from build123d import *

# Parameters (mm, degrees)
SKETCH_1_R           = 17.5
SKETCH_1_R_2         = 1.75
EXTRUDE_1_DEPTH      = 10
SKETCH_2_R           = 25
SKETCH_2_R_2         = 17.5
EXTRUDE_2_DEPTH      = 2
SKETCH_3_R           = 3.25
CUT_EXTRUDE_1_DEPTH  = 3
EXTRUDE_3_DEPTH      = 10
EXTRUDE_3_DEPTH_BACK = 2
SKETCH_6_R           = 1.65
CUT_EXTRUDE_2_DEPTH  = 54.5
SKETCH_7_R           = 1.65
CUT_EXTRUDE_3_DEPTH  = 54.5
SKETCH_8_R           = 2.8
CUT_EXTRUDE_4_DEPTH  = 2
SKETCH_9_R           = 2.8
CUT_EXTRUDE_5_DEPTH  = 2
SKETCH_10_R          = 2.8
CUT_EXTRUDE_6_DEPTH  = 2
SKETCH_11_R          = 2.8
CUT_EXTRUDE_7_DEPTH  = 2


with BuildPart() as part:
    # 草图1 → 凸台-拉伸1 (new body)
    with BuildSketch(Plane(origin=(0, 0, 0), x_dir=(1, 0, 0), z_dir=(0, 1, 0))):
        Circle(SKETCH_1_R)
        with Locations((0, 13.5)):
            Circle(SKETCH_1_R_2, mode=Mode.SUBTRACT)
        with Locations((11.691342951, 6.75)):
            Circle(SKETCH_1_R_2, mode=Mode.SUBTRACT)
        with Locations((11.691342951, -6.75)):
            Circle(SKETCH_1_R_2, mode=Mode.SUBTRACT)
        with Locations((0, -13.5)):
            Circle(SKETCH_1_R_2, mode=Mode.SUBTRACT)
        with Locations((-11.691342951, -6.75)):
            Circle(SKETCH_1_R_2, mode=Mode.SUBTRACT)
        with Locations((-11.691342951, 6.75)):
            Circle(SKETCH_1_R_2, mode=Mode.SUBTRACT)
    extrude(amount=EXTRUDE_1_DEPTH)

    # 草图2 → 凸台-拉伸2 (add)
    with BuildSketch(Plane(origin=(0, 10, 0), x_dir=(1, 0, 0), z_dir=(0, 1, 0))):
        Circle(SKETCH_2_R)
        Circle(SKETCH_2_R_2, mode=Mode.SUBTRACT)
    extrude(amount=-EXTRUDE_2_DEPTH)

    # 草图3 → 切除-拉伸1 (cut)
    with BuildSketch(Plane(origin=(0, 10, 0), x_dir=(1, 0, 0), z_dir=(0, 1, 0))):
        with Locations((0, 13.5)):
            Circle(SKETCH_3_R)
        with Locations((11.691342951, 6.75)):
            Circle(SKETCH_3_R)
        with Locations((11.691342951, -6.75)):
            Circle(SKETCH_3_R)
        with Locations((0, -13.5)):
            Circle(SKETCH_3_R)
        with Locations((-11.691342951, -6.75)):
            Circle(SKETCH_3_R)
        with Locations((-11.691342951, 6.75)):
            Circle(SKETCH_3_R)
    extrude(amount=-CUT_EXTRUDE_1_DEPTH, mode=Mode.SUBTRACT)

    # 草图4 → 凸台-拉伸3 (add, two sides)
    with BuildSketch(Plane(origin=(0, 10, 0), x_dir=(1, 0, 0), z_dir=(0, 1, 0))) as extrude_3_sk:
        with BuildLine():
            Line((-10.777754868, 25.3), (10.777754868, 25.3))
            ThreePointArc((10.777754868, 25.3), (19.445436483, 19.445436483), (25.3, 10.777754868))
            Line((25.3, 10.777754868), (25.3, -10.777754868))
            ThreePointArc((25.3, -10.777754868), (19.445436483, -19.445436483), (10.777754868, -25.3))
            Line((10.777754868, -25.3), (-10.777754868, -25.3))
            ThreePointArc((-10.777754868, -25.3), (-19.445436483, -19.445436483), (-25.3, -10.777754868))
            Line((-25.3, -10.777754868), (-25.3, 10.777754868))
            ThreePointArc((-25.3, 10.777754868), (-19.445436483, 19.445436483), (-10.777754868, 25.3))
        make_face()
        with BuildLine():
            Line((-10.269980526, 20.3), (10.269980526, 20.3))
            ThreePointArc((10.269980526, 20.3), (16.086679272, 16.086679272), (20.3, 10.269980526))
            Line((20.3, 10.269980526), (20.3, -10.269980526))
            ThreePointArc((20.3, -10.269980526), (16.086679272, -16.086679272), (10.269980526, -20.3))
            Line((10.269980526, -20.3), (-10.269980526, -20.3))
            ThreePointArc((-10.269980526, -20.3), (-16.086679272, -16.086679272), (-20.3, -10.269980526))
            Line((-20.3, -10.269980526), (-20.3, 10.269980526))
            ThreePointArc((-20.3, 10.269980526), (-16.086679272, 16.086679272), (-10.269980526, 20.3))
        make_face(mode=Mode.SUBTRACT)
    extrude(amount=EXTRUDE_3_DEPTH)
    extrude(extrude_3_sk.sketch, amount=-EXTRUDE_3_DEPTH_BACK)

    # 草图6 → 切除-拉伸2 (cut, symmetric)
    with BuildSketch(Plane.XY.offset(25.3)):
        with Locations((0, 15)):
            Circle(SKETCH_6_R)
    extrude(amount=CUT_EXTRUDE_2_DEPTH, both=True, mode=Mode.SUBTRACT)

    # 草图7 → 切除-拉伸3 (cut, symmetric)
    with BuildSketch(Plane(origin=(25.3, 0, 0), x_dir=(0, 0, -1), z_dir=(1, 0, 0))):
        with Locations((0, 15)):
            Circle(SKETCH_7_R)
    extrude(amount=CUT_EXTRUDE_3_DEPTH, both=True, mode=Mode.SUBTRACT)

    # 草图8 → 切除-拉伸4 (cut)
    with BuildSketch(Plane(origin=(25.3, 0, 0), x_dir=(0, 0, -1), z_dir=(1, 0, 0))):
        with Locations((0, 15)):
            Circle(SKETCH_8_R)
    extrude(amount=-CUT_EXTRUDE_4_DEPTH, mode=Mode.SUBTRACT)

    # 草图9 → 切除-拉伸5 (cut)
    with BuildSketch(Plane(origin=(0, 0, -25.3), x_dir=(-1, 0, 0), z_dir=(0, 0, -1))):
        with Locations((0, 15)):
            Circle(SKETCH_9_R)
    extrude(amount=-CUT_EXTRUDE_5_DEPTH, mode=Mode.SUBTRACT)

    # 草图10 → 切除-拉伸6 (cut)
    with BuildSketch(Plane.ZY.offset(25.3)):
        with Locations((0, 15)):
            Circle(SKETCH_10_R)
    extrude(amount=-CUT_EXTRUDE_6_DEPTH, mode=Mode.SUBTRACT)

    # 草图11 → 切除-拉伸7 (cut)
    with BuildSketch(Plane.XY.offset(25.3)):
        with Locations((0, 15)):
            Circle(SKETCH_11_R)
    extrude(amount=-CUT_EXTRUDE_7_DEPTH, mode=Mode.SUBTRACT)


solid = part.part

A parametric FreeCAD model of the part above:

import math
import FreeCAD as App
import Part
import Sketcher

doc = App.newDocument("Part")
params = doc.addObject("Spreadsheet::Sheet", "Params")
for row, (alias, value) in enumerate([
    ("sketch1_diameter", "35 mm"),
    ("sketch1_diameter2", "3.5 mm"),
    ("pad1_length", "10 mm"),
    ("sketch2_diameter", "50 mm"),
    ("sketch2_diameter2", "35 mm"),
    ("pad2_length", "2 mm"),
    ("sketch3_diameter", "6.5 mm"),
    ("pocket1_length", "3 mm"),
    ("sketch4_radius", "27.5 mm"),
    ("sketch4_radius2", "22.75 mm"),
    ("pad3_length", "10 mm"),
    ("pad3_length2", "2 mm"),
    ("sketch5_diameter", "3.3 mm"),
    ("pocket2_length", "109 mm"),
    ("sketch6_diameter", "3.3 mm"),
    ("pocket3_length", "109 mm"),
    ("sketch7_diameter", "5.6 mm"),
    ("pocket4_length", "2 mm"),
    ("sketch8_diameter", "5.6 mm"),
    ("pocket5_length", "2 mm"),
    ("sketch9_diameter", "5.6 mm"),
    ("pocket6_length", "2 mm"),
    ("sketch10_diameter", "5.6 mm"),
    ("pocket7_length", "2 mm"),
], start=1):
    params.set(f"A{row}", alias)
    params.set(f"B{row}", "=" + value)
    params.setAlias(f"B{row}", alias)

body = doc.addObject("PartDesign::Body", "Body")

sketch1 = body.newObject("Sketcher::SketchObject", "Sketch")
sketch1.AttachmentSupport = (doc.getObject("XZ_Plane"), [""])
sketch1.MapMode = "FlatFace"
sketch1.addGeometry([
    Part.Circle(App.Vector(0, 0, 0), App.Vector(0, 0, 1), 17.5),
    Part.Circle(App.Vector(-11.691343, 6.75, 0), App.Vector(0, 0, 1), 1.75),
    Part.Circle(App.Vector(0, 13.5, 0), App.Vector(0, 0, 1), 1.75),
    Part.Circle(App.Vector(11.691343, 6.75, 0), App.Vector(0, 0, 1), 1.75),
    Part.Circle(App.Vector(-11.691343, -6.75, 0), App.Vector(0, 0, 1), 1.75),
    Part.Circle(App.Vector(11.691343, -6.75, 0), App.Vector(0, 0, 1), 1.75),
    Part.Circle(App.Vector(0, -13.5, 0), App.Vector(0, 0, 1), 1.75),
], False)
sketch1.addConstraint([
    Sketcher.Constraint("Coincident", 0, 3, -1, 1),
    Sketcher.Constraint("Equal", 1, 2),
    Sketcher.Constraint("Equal", 2, 3),
    Sketcher.Constraint("Equal", 3, 4),
    Sketcher.Constraint("Equal", 4, 5),
    Sketcher.Constraint("Equal", 5, 6),
    Sketcher.Constraint("Symmetric", 3, 3, 4, 3, -1, 1),
    Sketcher.Constraint("Symmetric", 1, 3, 5, 3, -1, 1),
    Sketcher.Constraint("Symmetric", 2, 3, 6, 3, -1, 1),
    Sketcher.Constraint("Symmetric", 1, 3, 3, 3, -2),
    Sketcher.Constraint("PointOnObject", 2, 3, -2),
    Sketcher.Constraint("Diameter", 0, 35.0),
    Sketcher.Constraint("Diameter", 1, 3.5),
    Sketcher.Constraint("DistanceY", -1, 1, 2, 3, 13.5),
    Sketcher.Constraint("DistanceY", 4, 3, 1, 3, 13.5),
    Sketcher.Constraint("DistanceX", 1, 3, -1, 1, 11.691343),
])
sketch1.setExpression("Constraints[11]", "Params.sketch1_diameter")
sketch1.setExpression("Constraints[12]", "Params.sketch1_diameter2")
pad1 = body.newObject("PartDesign::Pad", "Pad")
pad1.Profile = sketch1
pad1.setExpression("Length", "Params.pad1_length")
pad1.Reversed = True

sketch2 = body.newObject("Sketcher::SketchObject", "Sketch001")
sketch2.AttachmentSupport = (doc.getObject("XZ_Plane"), [""])
sketch2.MapMode = "FlatFace"
sketch2.AttachmentOffset = App.Placement(App.Vector(0, 0, -10), App.Rotation())
sketch2.addGeometry([
    Part.Circle(App.Vector(0, 0, 0), App.Vector(0, 0, 1), 25),
    Part.Circle(App.Vector(0, 0, 0), App.Vector(0, 0, 1), 17.5),
], False)
sketch2.addConstraint([
    Sketcher.Constraint("Coincident", 0, 3, -1, 1),
    Sketcher.Constraint("Coincident", 1, 3, -1, 1),
    Sketcher.Constraint("Diameter", 0, 50.0),
    Sketcher.Constraint("Diameter", 1, 35.0),
])
sketch2.setExpression("Constraints[2]", "Params.sketch2_diameter")
sketch2.setExpression("Constraints[3]", "Params.sketch2_diameter2")
pad2 = body.newObject("PartDesign::Pad", "Pad001")
pad2.Profile = sketch2
pad2.setExpression("Length", "Params.pad2_length")

sketch3 = body.newObject("Sketcher::SketchObject", "Sketch002")
sketch3.AttachmentSupport = (doc.getObject("XZ_Plane"), [""])
sketch3.MapMode = "FlatFace"
sketch3.AttachmentOffset = App.Placement(App.Vector(0, 0, -10), App.Rotation())
sketch3.addGeometry([
    Part.Circle(App.Vector(0, -13.5, 0), App.Vector(0, 0, 1), 3.25),
    Part.Circle(App.Vector(11.691343, -6.75, 0), App.Vector(0, 0, 1), 3.25),
    Part.Circle(App.Vector(11.691343, 6.75, 0), App.Vector(0, 0, 1), 3.25),
    Part.Circle(App.Vector(0, 13.5, 0), App.Vector(0, 0, 1), 3.25),
    Part.Circle(App.Vector(-11.691343, 6.75, 0), App.Vector(0, 0, 1), 3.25),
    Part.Circle(App.Vector(-11.691343, -6.75, 0), App.Vector(0, 0, 1), 3.25),
], False)
sketch3.addConstraint([
    Sketcher.Constraint("Equal", 0, 1),
    Sketcher.Constraint("Equal", 1, 2),
    Sketcher.Constraint("Equal", 2, 3),
    Sketcher.Constraint("Equal", 3, 4),
    Sketcher.Constraint("Equal", 4, 5),
    Sketcher.Constraint("Symmetric", 0, 3, 3, 3, -1, 1),
    Sketcher.Constraint("Symmetric", 1, 3, 4, 3, -1, 1),
    Sketcher.Constraint("Symmetric", 2, 3, 5, 3, -1, 1),
    Sketcher.Constraint("Symmetric", 2, 3, 4, 3, -2),
    Sketcher.Constraint("PointOnObject", 0, 3, -2),
    Sketcher.Constraint("Diameter", 0, 6.5),
    Sketcher.Constraint("DistanceY", 0, 3, 3, 3, 27.0),
    Sketcher.Constraint("DistanceY", 1, 3, 2, 3, 13.5),
    Sketcher.Constraint("DistanceX", -1, 1, 1, 3, 11.691343),
])
sketch3.setExpression("Constraints[10]", "Params.sketch3_diameter")
pocket1 = body.newObject("PartDesign::Pocket", "Pocket")
pocket1.Profile = sketch3
pocket1.setExpression("Length", "Params.pocket1_length")
pocket1.Reversed = True

sketch4 = body.newObject("Sketcher::SketchObject", "Sketch003")
sketch4.AttachmentSupport = (doc.getObject("XZ_Plane"), [""])
sketch4.MapMode = "FlatFace"
sketch4.AttachmentOffset = App.Placement(App.Vector(0, 0, -10), App.Rotation())
sketch4.addGeometry([
    Part.LineSegment(App.Vector(10.777755, -25.3, 0), App.Vector(-10.777755, -25.3, 0)),
    Part.ArcOfCircle(Part.Circle(App.Vector(0, 0, 0), App.Vector(0, 0, 1), 27.5), math.radians(-156.926082), math.radians(-113.073918)),
    Part.LineSegment(App.Vector(-25.3, -10.777755, 0), App.Vector(-25.3, 10.777755, 0)),
    Part.ArcOfCircle(Part.Circle(App.Vector(0, 0, 0), App.Vector(0, 0, 1), 27.5), math.radians(113.073918), math.radians(156.926082)),
    Part.LineSegment(App.Vector(-10.777755, 25.3, 0), App.Vector(10.777755, 25.3, 0)),
    Part.ArcOfCircle(Part.Circle(App.Vector(0, 0, 0), App.Vector(0, 0, 1), 27.5), math.radians(23.073918), math.radians(66.926082)),
    Part.LineSegment(App.Vector(25.3, 10.777755, 0), App.Vector(25.3, -10.777755, 0)),
    Part.ArcOfCircle(Part.Circle(App.Vector(0, 0, 0), App.Vector(0, 0, 1), 27.5), math.radians(-66.926082), math.radians(-23.073918)),
    Part.LineSegment(App.Vector(-10.269981, -20.3, 0), App.Vector(10.269981, -20.3, 0)),
    Part.ArcOfCircle(Part.Circle(App.Vector(0, 0, 0), App.Vector(0, 0, 1), 22.75), math.radians(-63.164678), math.radians(-26.835322)),
    Part.LineSegment(App.Vector(20.3, -10.269981, 0), App.Vector(20.3, 10.269981, 0)),
    Part.ArcOfCircle(Part.Circle(App.Vector(0, 0, 0), App.Vector(0, 0, 1), 22.75), math.radians(26.835322), math.radians(63.164678)),
    Part.LineSegment(App.Vector(10.269981, 20.3, 0), App.Vector(-10.269981, 20.3, 0)),
    Part.ArcOfCircle(Part.Circle(App.Vector(0, 0, 0), App.Vector(0, 0, 1), 22.75), math.radians(116.835322), math.radians(153.164678)),
    Part.LineSegment(App.Vector(-20.3, 10.269981, 0), App.Vector(-20.3, -10.269981, 0)),
    Part.ArcOfCircle(Part.Circle(App.Vector(0, 0, 0), App.Vector(0, 0, 1), 22.75), math.radians(-153.164678), math.radians(-116.835322)),
], False)
sketch4.addConstraint([
    Sketcher.Constraint("Coincident", 0, 2, 1, 2),
    Sketcher.Constraint("Coincident", 1, 1, 2, 1),
    Sketcher.Constraint("Coincident", 2, 2, 3, 2),
    Sketcher.Constraint("Coincident", 3, 1, 4, 1),
    Sketcher.Constraint("Coincident", 4, 2, 5, 2),
    Sketcher.Constraint("Coincident", 5, 1, 6, 1),
    Sketcher.Constraint("Coincident", 6, 2, 7, 2),
    Sketcher.Constraint("Coincident", 7, 1, 0, 1),
    Sketcher.Constraint("Coincident", 8, 2, 9, 1),
    Sketcher.Constraint("Coincident", 9, 2, 10, 1),
    Sketcher.Constraint("Coincident", 10, 2, 11, 1),
    Sketcher.Constraint("Coincident", 11, 2, 12, 1),
    Sketcher.Constraint("Coincident", 12, 2, 13, 1),
    Sketcher.Constraint("Coincident", 13, 2, 14, 1),
    Sketcher.Constraint("Coincident", 14, 2, 15, 1),
    Sketcher.Constraint("Coincident", 15, 2, 8, 1),
    Sketcher.Constraint("Horizontal", 0),
    Sketcher.Constraint("Vertical", 2),
    Sketcher.Constraint("Horizontal", 4),
    Sketcher.Constraint("Vertical", 6),
    Sketcher.Constraint("Horizontal", 8),
    Sketcher.Constraint("Vertical", 10),
    Sketcher.Constraint("Horizontal", 12),
    Sketcher.Constraint("Vertical", 14),
    Sketcher.Constraint("Coincident", 1, 3, -1, 1),
    Sketcher.Constraint("Coincident", 3, 3, -1, 1),
    Sketcher.Constraint("Coincident", 5, 3, -1, 1),
    Sketcher.Constraint("Coincident", 7, 3, -1, 1),
    Sketcher.Constraint("Coincident", 9, 3, -1, 1),
    Sketcher.Constraint("Coincident", 11, 3, -1, 1),
    Sketcher.Constraint("Coincident", 13, 3, -1, 1),
    Sketcher.Constraint("Coincident", 15, 3, -1, 1),
    Sketcher.Constraint("Equal", 1, 3),
    Sketcher.Constraint("Equal", 3, 5),
    Sketcher.Constraint("Equal", 5, 7),
    Sketcher.Constraint("Equal", 9, 11),
    Sketcher.Constraint("Equal", 11, 13),
    Sketcher.Constraint("Equal", 13, 15),
    Sketcher.Constraint("Horizontal", 2, 2, 5, 1),
    Sketcher.Constraint("Horizontal", 10, 2, 13, 2),
    Sketcher.Constraint("Vertical", 0, 2, 3, 1),
    Sketcher.Constraint("Vertical", 8, 2, 11, 2),
    Sketcher.Constraint("Equal", 4, 2),
    Sketcher.Constraint("Equal", 12, 10),
    Sketcher.Constraint("Radius", 1, 27.5),
    Sketcher.Constraint("Radius", 9, 22.75),
    Sketcher.Constraint("DistanceY", 7, 1, 8, 2, 5.0),
    Sketcher.Constraint("DistanceY", 0, 2, -1, 1, 25.3),
])
sketch4.setExpression("Constraints[44]", "Params.sketch4_radius")
sketch4.setExpression("Constraints[45]", "Params.sketch4_radius2")
pad3 = body.newObject("PartDesign::Pad", "Pad002")
pad3.Profile = sketch4
pad3.Type = "TwoLengths"
pad3.setExpression("Length", "Params.pad3_length")
pad3.setExpression("Length2", "Params.pad3_length2")
pad3.Reversed = True

sketch5 = body.newObject("Sketcher::SketchObject", "Sketch004")
sketch5.AttachmentSupport = (doc.getObject("XY_Plane"), [""])
sketch5.MapMode = "FlatFace"
sketch5.AttachmentOffset = App.Placement(App.Vector(0, 0, 25.3), App.Rotation())
sketch5.addGeometry(Part.Circle(App.Vector(0, 15, 0), App.Vector(0, 0, 1), 1.65), False)
sketch5.addConstraint([
    Sketcher.Constraint("PointOnObject", 0, 3, -2),
    Sketcher.Constraint("Diameter", 0, 3.3),
    Sketcher.Constraint("DistanceY", -1, 1, 0, 3, 15.0),
])
sketch5.setExpression("Constraints[1]", "Params.sketch5_diameter")
pocket2 = body.newObject("PartDesign::Pocket", "Pocket001")
pocket2.Profile = sketch5
pocket2.setExpression("Length", "Params.pocket2_length")
pocket2.Midplane = True

sketch6 = body.newObject("Sketcher::SketchObject", "Sketch005")
sketch6.AttachmentSupport = (doc.getObject("YZ_Plane"), [""])
sketch6.MapMode = "FlatFace"
sketch6.AttachmentOffset = App.Placement(App.Vector(0, 0, 25.3), App.Rotation())
sketch6.addGeometry(Part.Circle(App.Vector(15, 0, 0), App.Vector(0, 0, 1), 1.65), False)
sketch6.addConstraint([
    Sketcher.Constraint("PointOnObject", 0, 3, -1),
    Sketcher.Constraint("Diameter", 0, 3.3),
    Sketcher.Constraint("DistanceX", -1, 1, 0, 3, 15.0),
])
sketch6.setExpression("Constraints[1]", "Params.sketch6_diameter")
pocket3 = body.newObject("PartDesign::Pocket", "Pocket002")
pocket3.Profile = sketch6
pocket3.setExpression("Length", "Params.pocket3_length")
pocket3.Midplane = True

sketch7 = body.newObject("Sketcher::SketchObject", "Sketch006")
sketch7.AttachmentSupport = (doc.getObject("YZ_Plane"), [""])
sketch7.MapMode = "FlatFace"
sketch7.AttachmentOffset = App.Placement(App.Vector(0, 0, 25.3), App.Rotation())
sketch7.addGeometry(Part.Circle(App.Vector(15, 0, 0), App.Vector(0, 0, 1), 2.8), False)
sketch7.addConstraint([
    Sketcher.Constraint("PointOnObject", 0, 3, -1),
    Sketcher.Constraint("Diameter", 0, 5.6),
    Sketcher.Constraint("DistanceX", -1, 1, 0, 3, 15.0),
])
sketch7.setExpression("Constraints[1]", "Params.sketch7_diameter")
pocket4 = body.newObject("PartDesign::Pocket", "Pocket003")
pocket4.Profile = sketch7
pocket4.setExpression("Length", "Params.pocket4_length")

sketch8 = body.newObject("Sketcher::SketchObject", "Sketch007")
sketch8.AttachmentSupport = (doc.getObject("XY_Plane"), [""])
sketch8.MapMode = "FlatFace"
sketch8.AttachmentOffset = App.Placement(App.Vector(0, 0, -25.3), App.Rotation())
sketch8.addGeometry(Part.Circle(App.Vector(0, 15, 0), App.Vector(0, 0, 1), 2.8), False)
sketch8.addConstraint([
    Sketcher.Constraint("PointOnObject", 0, 3, -2),
    Sketcher.Constraint("Diameter", 0, 5.6),
    Sketcher.Constraint("DistanceY", -1, 1, 0, 3, 15.0),
])
sketch8.setExpression("Constraints[1]", "Params.sketch8_diameter")
pocket5 = body.newObject("PartDesign::Pocket", "Pocket004")
pocket5.Profile = sketch8
pocket5.setExpression("Length", "Params.pocket5_length")
pocket5.Reversed = True

sketch9 = body.newObject("Sketcher::SketchObject", "Sketch008")
sketch9.AttachmentSupport = (doc.getObject("YZ_Plane"), [""])
sketch9.MapMode = "FlatFace"
sketch9.AttachmentOffset = App.Placement(App.Vector(0, 0, -25.3), App.Rotation())
sketch9.addGeometry(Part.Circle(App.Vector(15, 0, 0), App.Vector(0, 0, 1), 2.8), False)
sketch9.addConstraint([
    Sketcher.Constraint("PointOnObject", 0, 3, -1),
    Sketcher.Constraint("Diameter", 0, 5.6),
    Sketcher.Constraint("DistanceX", -1, 1, 0, 3, 15.0),
])
sketch9.setExpression("Constraints[1]", "Params.sketch9_diameter")
pocket6 = body.newObject("PartDesign::Pocket", "Pocket005")
pocket6.Profile = sketch9
pocket6.setExpression("Length", "Params.pocket6_length")
pocket6.Reversed = True

sketch10 = body.newObject("Sketcher::SketchObject", "Sketch009")
sketch10.AttachmentSupport = (doc.getObject("XY_Plane"), [""])
sketch10.MapMode = "FlatFace"
sketch10.AttachmentOffset = App.Placement(App.Vector(0, 0, 25.3), App.Rotation())
sketch10.addGeometry(Part.Circle(App.Vector(0, 15, 0), App.Vector(0, 0, 1), 2.8), False)
sketch10.addConstraint([
    Sketcher.Constraint("PointOnObject", 0, 3, -2),
    Sketcher.Constraint("Diameter", 0, 5.6),
    Sketcher.Constraint("DistanceY", -1, 1, 0, 3, 15.0),
])
sketch10.setExpression("Constraints[1]", "Params.sketch10_diameter")
pocket7 = body.newObject("PartDesign::Pocket", "Pocket006")
pocket7.Profile = sketch10
pocket7.setExpression("Length", "Params.pocket7_length")

doc.recompute()
